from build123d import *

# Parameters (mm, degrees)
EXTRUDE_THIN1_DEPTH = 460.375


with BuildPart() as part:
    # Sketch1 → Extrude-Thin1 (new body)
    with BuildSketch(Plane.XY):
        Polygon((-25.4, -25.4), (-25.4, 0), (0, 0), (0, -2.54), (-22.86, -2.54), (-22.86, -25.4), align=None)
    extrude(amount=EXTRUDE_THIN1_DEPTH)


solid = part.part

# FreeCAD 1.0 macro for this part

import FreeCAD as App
import Part
import Sketcher
Q = App.Units.Quantity

doc = App.newDocument("Part")
body = doc.addObject("PartDesign::Body", "Body")

sketch1 = doc.addObject("Sketcher::SketchObject", "Sketch")
body.addObject(sketch1)
sketch1.AttachmentSupport = (doc.XY_Plane, [""])
sketch1.MapMode = "FlatFace"
sketch1.addGeometry(Part.LineSegment(App.Vector(-25.4, 0, 0), App.Vector(-25.4, -25.4, 0)), False)
sketch1.addGeometry(Part.LineSegment(App.Vector(-25.4, -25.4, 0), App.Vector(-22.86, -25.4, 0)), False)
sketch1.addGeometry(Part.LineSegment(App.Vector(-22.86, -25.4, 0), App.Vector(-22.86, -2.54, 0)), False)
sketch1.addGeometry(Part.LineSegment(App.Vector(-22.86, -2.54, 0), App.Vector(0, -2.54, 0)), False)
sketch1.addGeometry(Part.LineSegment(App.Vector(0, -2.54, 0), App.Vector(0, 0, 0)), False)
sketch1.addGeometry(Part.LineSegment(App.Vector(0, 0, 0), App.Vector(-25.4, 0, 0)), False)
sketch1.addConstraint(Sketcher.Constraint("Coincident", 0, 2, 1, 1))
sketch1.addConstraint(Sketcher.Constraint("Coincident", 1, 2, 2, 1))
sketch1.addConstraint(Sketcher.Constraint("Coincident", 2, 2, 3, 1))
sketch1.addConstraint(Sketcher.Constraint("Coincident", 3, 2, 4, 1))
sketch1.addConstraint(Sketcher.Constraint("Coincident", 4, 2, 5, 1))
sketch1.addConstraint(Sketcher.Constraint("Coincident", 5, 2, 0, 1))
sketch1.addConstraint(Sketcher.Constraint("Vertical", 0))
sketch1.addConstraint(Sketcher.Constraint("Horizontal", 1))
sketch1.addConstraint(Sketcher.Constraint("Vertical", 2))
sketch1.addConstraint(Sketcher.Constraint("Horizontal", 3))
sketch1.addConstraint(Sketcher.Constraint("Vertical", 4))
sketch1.addConstraint(Sketcher.Constraint("Horizontal", 5))
sketch1.addConstraint(Sketcher.Constraint("Coincident", 4, 2, -1, 1))
sketch1.addConstraint(Sketcher.Constraint("Equal", 5, 0))
sketch1.addConstraint(Sketcher.Constraint("Equal", 3, 2))
sketch1.addConstraint(Sketcher.Constraint("DistanceX", 5, 2, 5, 1, Q("1 in")))
sketch1.addConstraint(Sketcher.Constraint("DistanceX", 1, 1, 1, 2, Q("0.1 in")))
pad1 = doc.addObject("PartDesign::Pad", "Pad")
body.addObject(pad1)
pad1.Profile = sketch1
pad1.Length = Q("18.125 in")

doc.recompute()
